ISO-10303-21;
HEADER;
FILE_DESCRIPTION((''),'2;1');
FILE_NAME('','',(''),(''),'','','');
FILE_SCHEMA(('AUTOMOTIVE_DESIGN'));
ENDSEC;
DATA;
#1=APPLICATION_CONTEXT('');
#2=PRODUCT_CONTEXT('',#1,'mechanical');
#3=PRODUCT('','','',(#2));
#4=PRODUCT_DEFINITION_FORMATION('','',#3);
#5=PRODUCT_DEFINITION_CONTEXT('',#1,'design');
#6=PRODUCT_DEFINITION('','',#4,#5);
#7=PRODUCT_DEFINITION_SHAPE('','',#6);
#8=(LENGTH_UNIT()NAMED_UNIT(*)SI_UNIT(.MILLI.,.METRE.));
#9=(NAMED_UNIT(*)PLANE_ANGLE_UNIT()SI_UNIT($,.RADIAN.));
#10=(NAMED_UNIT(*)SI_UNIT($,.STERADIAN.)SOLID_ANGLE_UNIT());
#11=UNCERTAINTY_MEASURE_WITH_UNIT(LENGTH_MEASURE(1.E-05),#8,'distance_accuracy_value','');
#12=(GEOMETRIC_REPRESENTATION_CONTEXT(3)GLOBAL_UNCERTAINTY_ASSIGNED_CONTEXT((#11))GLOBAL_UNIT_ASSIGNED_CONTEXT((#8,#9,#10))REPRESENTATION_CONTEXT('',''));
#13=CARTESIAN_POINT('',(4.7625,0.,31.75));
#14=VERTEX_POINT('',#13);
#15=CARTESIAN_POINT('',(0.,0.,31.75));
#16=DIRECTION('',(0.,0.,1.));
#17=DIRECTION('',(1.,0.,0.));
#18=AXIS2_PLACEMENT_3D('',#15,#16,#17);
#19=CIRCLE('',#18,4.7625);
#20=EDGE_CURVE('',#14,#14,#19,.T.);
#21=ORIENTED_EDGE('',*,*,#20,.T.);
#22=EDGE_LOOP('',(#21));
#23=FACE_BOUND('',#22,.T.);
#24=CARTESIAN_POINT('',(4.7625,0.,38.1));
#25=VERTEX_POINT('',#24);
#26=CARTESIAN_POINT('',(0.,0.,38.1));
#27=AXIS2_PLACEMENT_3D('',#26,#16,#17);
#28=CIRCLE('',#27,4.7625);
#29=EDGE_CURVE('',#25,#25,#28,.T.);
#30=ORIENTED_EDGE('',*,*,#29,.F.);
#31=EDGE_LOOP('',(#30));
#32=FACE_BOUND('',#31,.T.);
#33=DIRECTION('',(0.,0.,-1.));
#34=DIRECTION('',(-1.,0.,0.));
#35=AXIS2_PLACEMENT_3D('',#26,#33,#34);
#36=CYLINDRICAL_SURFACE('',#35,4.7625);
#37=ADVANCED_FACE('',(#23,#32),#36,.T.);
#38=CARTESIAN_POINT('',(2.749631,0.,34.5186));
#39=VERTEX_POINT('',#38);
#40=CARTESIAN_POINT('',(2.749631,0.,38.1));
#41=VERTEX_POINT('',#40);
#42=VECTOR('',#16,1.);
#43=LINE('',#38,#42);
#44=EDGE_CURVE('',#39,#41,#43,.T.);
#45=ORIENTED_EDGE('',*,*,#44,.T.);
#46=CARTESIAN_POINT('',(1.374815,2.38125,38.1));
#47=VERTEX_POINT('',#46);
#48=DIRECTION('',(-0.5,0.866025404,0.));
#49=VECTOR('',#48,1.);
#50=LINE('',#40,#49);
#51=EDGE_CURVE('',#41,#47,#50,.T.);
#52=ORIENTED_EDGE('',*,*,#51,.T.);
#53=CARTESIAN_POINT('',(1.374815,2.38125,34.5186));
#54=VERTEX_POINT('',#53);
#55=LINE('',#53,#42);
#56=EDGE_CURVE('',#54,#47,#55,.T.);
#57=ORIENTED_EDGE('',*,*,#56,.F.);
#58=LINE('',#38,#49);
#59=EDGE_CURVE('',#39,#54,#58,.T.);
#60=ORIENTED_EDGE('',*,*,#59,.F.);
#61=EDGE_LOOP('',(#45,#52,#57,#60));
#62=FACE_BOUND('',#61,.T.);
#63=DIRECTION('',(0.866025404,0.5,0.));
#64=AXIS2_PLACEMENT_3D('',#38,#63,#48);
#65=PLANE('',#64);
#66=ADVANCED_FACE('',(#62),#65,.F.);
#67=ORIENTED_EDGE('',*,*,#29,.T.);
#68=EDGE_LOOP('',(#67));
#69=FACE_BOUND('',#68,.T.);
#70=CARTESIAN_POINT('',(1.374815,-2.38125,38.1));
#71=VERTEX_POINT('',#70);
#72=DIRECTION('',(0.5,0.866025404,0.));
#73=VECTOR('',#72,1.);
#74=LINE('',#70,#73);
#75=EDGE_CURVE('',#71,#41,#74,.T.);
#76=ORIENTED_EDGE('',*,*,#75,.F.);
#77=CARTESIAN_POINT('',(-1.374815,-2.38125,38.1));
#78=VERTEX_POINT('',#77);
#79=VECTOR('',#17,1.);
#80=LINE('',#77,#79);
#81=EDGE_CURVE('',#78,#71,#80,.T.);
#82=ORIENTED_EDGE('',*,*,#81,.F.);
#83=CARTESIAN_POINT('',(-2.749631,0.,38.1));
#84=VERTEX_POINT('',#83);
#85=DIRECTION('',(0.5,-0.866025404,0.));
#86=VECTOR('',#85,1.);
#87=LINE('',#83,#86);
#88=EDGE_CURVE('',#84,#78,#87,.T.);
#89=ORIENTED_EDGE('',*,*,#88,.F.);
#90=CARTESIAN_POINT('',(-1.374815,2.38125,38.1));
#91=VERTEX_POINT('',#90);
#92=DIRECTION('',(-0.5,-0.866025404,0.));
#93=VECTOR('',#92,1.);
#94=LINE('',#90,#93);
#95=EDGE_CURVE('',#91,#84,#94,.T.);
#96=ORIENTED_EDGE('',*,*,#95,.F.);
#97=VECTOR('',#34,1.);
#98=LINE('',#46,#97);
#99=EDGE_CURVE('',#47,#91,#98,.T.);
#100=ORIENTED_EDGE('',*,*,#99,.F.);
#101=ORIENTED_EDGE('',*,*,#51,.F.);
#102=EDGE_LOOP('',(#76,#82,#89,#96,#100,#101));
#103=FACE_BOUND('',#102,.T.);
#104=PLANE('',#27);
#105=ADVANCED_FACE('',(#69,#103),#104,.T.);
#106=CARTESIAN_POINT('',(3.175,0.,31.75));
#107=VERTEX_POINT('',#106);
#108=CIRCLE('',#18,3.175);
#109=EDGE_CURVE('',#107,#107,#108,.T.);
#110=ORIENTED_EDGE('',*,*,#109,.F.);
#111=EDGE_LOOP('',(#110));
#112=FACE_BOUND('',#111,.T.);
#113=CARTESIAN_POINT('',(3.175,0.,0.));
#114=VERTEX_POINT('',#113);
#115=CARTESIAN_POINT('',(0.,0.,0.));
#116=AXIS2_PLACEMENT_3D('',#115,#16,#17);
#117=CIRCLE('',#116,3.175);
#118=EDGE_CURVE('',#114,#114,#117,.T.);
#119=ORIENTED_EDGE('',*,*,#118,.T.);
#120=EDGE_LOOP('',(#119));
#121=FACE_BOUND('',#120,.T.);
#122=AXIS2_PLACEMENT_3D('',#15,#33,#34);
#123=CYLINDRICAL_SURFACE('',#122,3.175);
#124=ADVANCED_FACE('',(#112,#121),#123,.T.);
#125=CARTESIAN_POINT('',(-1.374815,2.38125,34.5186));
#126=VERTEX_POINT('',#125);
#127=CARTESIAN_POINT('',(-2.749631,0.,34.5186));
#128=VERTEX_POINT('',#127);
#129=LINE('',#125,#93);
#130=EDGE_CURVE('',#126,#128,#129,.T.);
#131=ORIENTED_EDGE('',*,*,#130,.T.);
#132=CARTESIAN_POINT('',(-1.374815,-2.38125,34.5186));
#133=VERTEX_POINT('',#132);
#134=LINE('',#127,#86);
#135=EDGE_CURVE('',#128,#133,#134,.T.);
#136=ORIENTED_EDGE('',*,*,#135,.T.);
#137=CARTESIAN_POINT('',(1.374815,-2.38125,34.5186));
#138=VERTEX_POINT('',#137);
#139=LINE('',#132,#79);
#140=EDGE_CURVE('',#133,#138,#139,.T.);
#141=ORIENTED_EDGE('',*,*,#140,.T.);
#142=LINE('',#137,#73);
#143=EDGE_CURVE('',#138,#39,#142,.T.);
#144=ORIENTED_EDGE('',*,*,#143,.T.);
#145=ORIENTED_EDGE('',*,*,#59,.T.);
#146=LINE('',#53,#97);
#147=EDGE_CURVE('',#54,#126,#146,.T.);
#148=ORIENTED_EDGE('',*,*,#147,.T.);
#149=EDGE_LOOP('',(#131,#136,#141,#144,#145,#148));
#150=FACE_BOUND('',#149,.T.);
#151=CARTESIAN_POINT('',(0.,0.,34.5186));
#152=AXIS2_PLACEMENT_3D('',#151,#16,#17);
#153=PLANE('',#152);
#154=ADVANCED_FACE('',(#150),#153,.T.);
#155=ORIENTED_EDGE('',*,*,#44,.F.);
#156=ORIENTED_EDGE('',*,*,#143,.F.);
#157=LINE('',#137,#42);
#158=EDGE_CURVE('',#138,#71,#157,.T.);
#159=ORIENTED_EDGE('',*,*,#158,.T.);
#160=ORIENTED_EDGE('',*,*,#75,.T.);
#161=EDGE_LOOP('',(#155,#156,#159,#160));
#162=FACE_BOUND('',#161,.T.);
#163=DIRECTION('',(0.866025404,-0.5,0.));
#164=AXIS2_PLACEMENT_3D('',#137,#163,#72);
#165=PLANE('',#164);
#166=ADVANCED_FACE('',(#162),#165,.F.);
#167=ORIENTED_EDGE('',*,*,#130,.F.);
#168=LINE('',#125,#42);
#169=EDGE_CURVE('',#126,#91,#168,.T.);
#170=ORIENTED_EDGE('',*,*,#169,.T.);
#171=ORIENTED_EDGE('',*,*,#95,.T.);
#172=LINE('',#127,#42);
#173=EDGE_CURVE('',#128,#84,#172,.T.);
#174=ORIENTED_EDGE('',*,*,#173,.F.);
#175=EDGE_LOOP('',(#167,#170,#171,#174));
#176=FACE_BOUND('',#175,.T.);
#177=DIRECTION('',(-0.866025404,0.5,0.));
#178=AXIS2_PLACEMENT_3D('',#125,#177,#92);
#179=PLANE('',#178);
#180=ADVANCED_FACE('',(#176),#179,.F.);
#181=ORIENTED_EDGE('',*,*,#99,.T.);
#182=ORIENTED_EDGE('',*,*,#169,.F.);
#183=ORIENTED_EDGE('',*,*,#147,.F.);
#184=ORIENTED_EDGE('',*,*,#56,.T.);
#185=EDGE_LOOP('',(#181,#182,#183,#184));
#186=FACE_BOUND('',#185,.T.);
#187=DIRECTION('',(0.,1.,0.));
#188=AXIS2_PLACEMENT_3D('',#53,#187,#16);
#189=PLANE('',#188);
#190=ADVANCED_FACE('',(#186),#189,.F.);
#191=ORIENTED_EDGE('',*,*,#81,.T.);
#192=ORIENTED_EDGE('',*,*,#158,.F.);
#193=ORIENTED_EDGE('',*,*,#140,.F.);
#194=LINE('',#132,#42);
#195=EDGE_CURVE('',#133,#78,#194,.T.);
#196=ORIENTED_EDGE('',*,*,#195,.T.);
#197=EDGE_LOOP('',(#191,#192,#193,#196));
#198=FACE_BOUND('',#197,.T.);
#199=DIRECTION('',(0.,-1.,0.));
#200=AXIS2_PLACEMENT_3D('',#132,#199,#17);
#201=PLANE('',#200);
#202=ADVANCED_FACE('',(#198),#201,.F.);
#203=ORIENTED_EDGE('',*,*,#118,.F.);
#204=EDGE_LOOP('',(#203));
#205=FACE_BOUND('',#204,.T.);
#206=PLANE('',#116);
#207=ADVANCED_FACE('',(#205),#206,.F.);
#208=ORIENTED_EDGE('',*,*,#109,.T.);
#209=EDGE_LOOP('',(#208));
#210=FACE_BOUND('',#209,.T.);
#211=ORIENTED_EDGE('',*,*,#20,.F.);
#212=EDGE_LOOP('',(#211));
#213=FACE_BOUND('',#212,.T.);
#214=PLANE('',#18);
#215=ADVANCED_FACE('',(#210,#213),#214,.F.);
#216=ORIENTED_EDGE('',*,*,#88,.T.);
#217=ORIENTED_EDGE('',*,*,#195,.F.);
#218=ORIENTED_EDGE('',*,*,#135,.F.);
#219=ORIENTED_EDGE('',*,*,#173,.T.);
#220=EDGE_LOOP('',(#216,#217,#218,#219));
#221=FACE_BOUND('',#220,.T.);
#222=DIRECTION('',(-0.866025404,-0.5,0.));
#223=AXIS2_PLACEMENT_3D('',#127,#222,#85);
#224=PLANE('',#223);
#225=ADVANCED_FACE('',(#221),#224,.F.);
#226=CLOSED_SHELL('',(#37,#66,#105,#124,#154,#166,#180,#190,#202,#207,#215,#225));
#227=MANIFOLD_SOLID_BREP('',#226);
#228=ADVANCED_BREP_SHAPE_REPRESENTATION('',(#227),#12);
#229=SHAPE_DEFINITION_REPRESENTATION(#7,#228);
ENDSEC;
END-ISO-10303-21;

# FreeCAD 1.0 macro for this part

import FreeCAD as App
import Part
import Sketcher
Q = App.Units.Quantity


def add_polygon(sketch, points):
    """Adds a closed chain of lines whose ends are joined by coincident constraints."""
    first, n = sketch.GeometryCount, len(points)
    for a, b in zip(points, points[1:] + points[:1]):
        sketch.addGeometry(Part.LineSegment(App.Vector(*a, 0), App.Vector(*b, 0)), False)
    for i in range(n):
        sketch.addConstraint(Sketcher.Constraint("Coincident", first + i, 2, first + (i + 1) % n, 1))

doc = App.newDocument("Part")
body = doc.addObject("PartDesign::Body", "Body")

# Sketch on XY plane
sketch1 = doc.addObject("Sketcher::SketchObject", "Sketch")
body.addObject(sketch1)
sketch1.AttachmentSupport = (doc.XY_Plane, [""])
sketch1.MapMode = "FlatFace"
sketch1.addGeometry(Part.Circle(App.Vector(0, 0, 0), App.Vector(0, 0, 1), 3.2), False)
sketch1.addConstraint(Sketcher.Constraint("Coincident", 0, 3, -1, 1))
sketch1.addConstraint(Sketcher.Constraint("Diameter", 0, Q("0.25 in")))
pad1 = doc.addObject("PartDesign::Pad", "Pad")
body.addObject(pad1)
pad1.Profile = sketch1
pad1.Length = Q("1.25 in")

# Sketch on XY plane
sketch2 = doc.addObject("Sketcher::SketchObject", "Sketch001")
body.addObject(sketch2)
sketch2.AttachmentSupport = (doc.XY_Plane, [""])
sketch2.MapMode = "FlatFace"
sketch2.AttachmentOffset = App.Placement(App.Vector(0, 0, 1.25 * 25.4), App.Rotation())
sketch2.addGeometry(Part.Circle(App.Vector(0, 0, 0), App.Vector(0, 0, 1), 4.8), False)
sketch2.addConstraint(Sketcher.Constraint("Coincident", 0, 3, -1, 1))
sketch2.addConstraint(Sketcher.Constraint("Diameter", 0, Q("0.375 in")))
pad2 = doc.addObject("PartDesign::Pad", "Pad001")
body.addObject(pad2)
pad2.Profile = sketch2
pad2.Length = Q("0.25 in")

# Sketch on XY plane
sketch3 = doc.addObject("Sketcher::SketchObject", "Sketch002")
body.addObject(sketch3)
sketch3.AttachmentSupport = (doc.XY_Plane, [""])
sketch3.MapMode = "FlatFace"
sketch3.AttachmentOffset = App.Placement(App.Vector(0, 0, 1.5 * 25.4), App.Rotation())
add_polygon(sketch3, [(2.7, 0), (1.4, 2.4), (-1.4, 2.4), (-2.7, 0), (-1.4, -2.4), (1.4, -2.4)])  # lines 0-5
sketch3.addConstraint(Sketcher.Constraint("Horizontal", 1))
sketch3.addConstraint(Sketcher.Constraint("Horizontal", 4))
sketch3.addConstraint(Sketcher.Constraint("Symmetric", 0, 2, 3, 2, -1, 1))
sketch3.addConstraint(Sketcher.Constraint("Symmetric", 2, 2, 5, 2, -1, 1))
sketch3.addConstraint(Sketcher.Constraint("PointOnObject", 2, 2, -1))
sketch3.addConstraint(Sketcher.Constraint("Parallel", 2, 5))
sketch3.addConstraint(Sketcher.Constraint("Vertical", 1, 2, 3, 2))
sketch3.addConstraint(Sketcher.Constraint("Angle", 0, Q("120 deg")))
sketch3.addConstraint(Sketcher.Constraint("DistanceY", -1, 1, 0, 2, Q("0.09375 in")))
sketch3.addConstraint(Sketcher.Constraint("DistanceX", 1, 2, 1, 1, Q("2.749631 mm")))
pocket1 = doc.addObject("PartDesign::Pocket", "Pocket")
body.addObject(pocket1)
pocket1.Profile = sketch3
pocket1.Length = Q("0.141 in")

doc.recompute()
